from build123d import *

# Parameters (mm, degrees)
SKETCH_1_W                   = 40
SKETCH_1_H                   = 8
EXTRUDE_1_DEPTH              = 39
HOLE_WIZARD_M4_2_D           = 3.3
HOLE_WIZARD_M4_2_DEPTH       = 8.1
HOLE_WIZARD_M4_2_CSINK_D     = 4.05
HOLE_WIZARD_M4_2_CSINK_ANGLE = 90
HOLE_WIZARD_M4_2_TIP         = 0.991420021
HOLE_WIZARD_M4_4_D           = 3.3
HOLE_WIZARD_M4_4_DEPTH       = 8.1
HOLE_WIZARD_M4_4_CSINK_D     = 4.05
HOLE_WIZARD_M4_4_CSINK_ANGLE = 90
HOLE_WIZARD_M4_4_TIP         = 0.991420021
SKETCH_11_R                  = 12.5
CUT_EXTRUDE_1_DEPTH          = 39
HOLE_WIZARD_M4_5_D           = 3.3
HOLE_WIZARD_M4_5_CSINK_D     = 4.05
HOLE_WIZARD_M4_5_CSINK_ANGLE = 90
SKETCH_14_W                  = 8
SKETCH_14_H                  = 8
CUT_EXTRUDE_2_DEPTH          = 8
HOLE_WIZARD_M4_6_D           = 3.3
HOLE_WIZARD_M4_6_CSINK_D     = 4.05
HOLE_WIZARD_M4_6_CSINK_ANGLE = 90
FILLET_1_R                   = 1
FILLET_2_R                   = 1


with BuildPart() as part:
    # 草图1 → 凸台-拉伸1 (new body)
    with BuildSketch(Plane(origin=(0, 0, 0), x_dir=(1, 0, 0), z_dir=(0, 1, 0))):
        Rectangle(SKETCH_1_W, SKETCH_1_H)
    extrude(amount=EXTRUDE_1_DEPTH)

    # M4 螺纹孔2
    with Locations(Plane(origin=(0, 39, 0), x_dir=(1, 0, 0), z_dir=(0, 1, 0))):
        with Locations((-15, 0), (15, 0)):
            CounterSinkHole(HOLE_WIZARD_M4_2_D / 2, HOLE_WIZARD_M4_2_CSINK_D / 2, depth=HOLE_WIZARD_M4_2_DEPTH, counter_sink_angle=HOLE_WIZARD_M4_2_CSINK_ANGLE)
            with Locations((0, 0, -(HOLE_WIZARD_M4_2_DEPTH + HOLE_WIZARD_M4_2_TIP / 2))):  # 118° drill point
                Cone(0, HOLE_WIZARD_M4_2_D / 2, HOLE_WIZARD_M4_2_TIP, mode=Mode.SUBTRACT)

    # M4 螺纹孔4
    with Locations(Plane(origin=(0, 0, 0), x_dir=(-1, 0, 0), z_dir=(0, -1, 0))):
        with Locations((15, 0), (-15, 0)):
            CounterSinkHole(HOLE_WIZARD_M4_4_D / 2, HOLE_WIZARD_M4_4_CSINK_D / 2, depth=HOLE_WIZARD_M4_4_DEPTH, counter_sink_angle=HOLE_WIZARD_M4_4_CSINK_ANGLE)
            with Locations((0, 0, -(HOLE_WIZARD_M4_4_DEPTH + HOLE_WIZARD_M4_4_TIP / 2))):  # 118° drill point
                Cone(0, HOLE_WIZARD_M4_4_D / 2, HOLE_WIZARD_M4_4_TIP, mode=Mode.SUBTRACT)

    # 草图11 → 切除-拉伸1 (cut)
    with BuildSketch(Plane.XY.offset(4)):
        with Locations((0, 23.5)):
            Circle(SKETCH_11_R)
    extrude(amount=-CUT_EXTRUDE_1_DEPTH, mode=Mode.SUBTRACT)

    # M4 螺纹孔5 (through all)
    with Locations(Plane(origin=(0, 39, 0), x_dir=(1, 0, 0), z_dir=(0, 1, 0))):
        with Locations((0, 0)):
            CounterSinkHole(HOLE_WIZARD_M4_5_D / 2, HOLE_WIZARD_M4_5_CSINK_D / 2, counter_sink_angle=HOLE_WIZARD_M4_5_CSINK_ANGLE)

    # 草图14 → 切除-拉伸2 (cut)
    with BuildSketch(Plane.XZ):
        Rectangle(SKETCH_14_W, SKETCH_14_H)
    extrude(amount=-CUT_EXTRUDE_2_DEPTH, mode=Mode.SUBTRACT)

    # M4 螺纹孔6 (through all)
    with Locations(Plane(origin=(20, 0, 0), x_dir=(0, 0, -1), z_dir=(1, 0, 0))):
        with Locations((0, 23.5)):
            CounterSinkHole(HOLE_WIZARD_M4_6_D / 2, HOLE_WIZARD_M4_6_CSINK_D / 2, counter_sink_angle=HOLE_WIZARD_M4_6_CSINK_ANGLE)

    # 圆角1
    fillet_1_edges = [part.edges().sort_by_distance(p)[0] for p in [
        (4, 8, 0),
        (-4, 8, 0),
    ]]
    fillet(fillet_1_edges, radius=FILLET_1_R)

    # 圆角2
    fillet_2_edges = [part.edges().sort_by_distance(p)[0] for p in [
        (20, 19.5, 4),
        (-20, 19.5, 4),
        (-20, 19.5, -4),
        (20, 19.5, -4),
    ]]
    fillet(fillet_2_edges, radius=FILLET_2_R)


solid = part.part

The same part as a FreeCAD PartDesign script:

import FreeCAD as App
import Part
import Sketcher

V = App.Vector


def edges_at(feature, points):
    """Names of the edges that pass closest to the given points."""
    edges = feature.Shape.Edges
    near = lambda p: min(range(len(edges)), key=lambda i: edges[i].distToShape(Part.Vertex(*p))[0])
    return sorted({f"Edge{near(p) + 1}" for p in points})

doc = App.newDocument("Part")
params = doc.addObject("Spreadsheet::Sheet", "Params")
for row, (alias, value) in enumerate([
    ("sketch1_width", "40 mm"),
    ("sketch1_height", "8 mm"),
    ("pad1_length", "39 mm"),
    ("sketch2_diameter", "3.3 mm"),
    ("hole_diameter", "3.3 mm"),
    ("hole_depth", "8.1 mm"),
    ("hole_csink_diameter", "4.05 mm"),
    ("sketch3_diameter", "3.3 mm"),
    ("hole2_diameter", "3.3 mm"),
    ("hole2_depth", "8.1 mm"),
    ("hole2_csink_diameter", "4.05 mm"),
    ("sketch4_diameter", "25 mm"),
    ("pocket1_length", "39 mm"),
    ("sketch5_diameter", "3.3 mm"),
    ("hole3_diameter", "3.3 mm"),
    ("hole3_csink_diameter", "4.05 mm"),
    ("sketch6_width", "8 mm"),
    ("pocket2_length", "8 mm"),
    ("sketch7_diameter", "3.3 mm"),
    ("hole4_diameter", "3.3 mm"),
    ("hole4_csink_diameter", "4.05 mm"),
    ("fillet_radius", "1 mm"),
    ("fillet2_radius", "1 mm"),
], start=1):
    params.set(f"A{row}", alias)
    params.set(f"B{row}", "=" + value)
    params.setAlias(f"B{row}", alias)

body = doc.addObject("PartDesign::Body", "Body")

# Sketch on XZ plane
sketch1 = body.newObject("Sketcher::SketchObject", "Sketch")
sketch1.AttachmentSupport = (doc.getObject("XZ_Plane"), [""])
sketch1.MapMode = "FlatFace"
sketch1.addGeometry(Part.LineSegment(V(-20, -4, 0), V(-20, 4, 0)), False)
sketch1.addGeometry(Part.LineSegment(V(-20, 4, 0), V(20, 4, 0)), False)
sketch1.addGeometry(Part.LineSegment(V(20, 4, 0), V(20, -4, 0)), False)
sketch1.addGeometry(Part.LineSegment(V(20, -4, 0), V(-20, -4, 0)), False)
sketch1.addConstraint(Sketcher.Constraint("Coincident", 0, 2, 1, 1))
sketch1.addConstraint(Sketcher.Constraint("Coincident", 1, 2, 2, 1))
sketch1.addConstraint(Sketcher.Constraint("Coincident", 2, 2, 3, 1))
sketch1.addConstraint(Sketcher.Constraint("Coincident", 3, 2, 0, 1))
sketch1.addConstraint(Sketcher.Constraint("Vertical", 0))
sketch1.addConstraint(Sketcher.Constraint("Horizontal", 1))
sketch1.addConstraint(Sketcher.Constraint("Vertical", 2))
sketch1.addConstraint(Sketcher.Constraint("Horizontal", 3))
sketch1.addConstraint(Sketcher.Constraint("Symmetric", 0, 2, 2, 2, -1, 1))
sketch1.addConstraint(Sketcher.Constraint("DistanceX", 1, 1, 1, 2, 40.0))
sketch1.addConstraint(Sketcher.Constraint("DistanceY", 0, 1, 0, 2, 8.0))
sketch1.setExpression("Constraints[9]", "Params.sketch1_width")
sketch1.setExpression("Constraints[10]", "Params.sketch1_height")
pad1 = body.newObject("PartDesign::Pad", "Pad")
pad1.Profile = sketch1
pad1.setExpression("Length", "Params.pad1_length")
pad1.Reversed = True

# Sketch on XZ plane
sketch2 = body.newObject("Sketcher::SketchObject", "Sketch001")
sketch2.AttachmentSupport = (doc.getObject("XZ_Plane"), [""])
sketch2.MapMode = "FlatFace"
sketch2.AttachmentOffset = App.Placement(V(0, 0, -39), App.Rotation())
sketch2.addGeometry(Part.Circle(V(-15, 0, 0), V(0, 0, 1), 1.65), False)
sketch2.addGeometry(Part.Circle(V(15, 0, 0), V(0, 0, 1), 1.65), False)
sketch2.addConstraint(Sketcher.Constraint("Equal", 0, 1))
sketch2.addConstraint(Sketcher.Constraint("Symmetric", 0, 3, 1, 3, -1, 1))
sketch2.addConstraint(Sketcher.Constraint("PointOnObject", 0, 3, -1))
sketch2.addConstraint(Sketcher.Constraint("Diameter", 0, 3.3))
sketch2.addConstraint(Sketcher.Constraint("DistanceX", 0, 3, -1, 1, 15.0))
sketch2.setExpression("Constraints[3]", "Params.sketch2_diameter")
doc.recompute()
hole = body.newObject("PartDesign::Hole", "Hole")
hole.Profile = sketch2
hole.ThreadType = "None"
hole.setExpression("Diameter", "Params.hole_diameter")
hole.DepthType = "Dimension"
hole.setExpression("Depth", "Params.hole_depth")
hole.DrillPoint = "Angled"
hole.DrillPointAngle = 118
hole.HoleCutType = "Countersink"
hole.setExpression("HoleCutDiameter", "Params.hole_csink_diameter")
hole.HoleCutCountersinkAngle = 90
hole.Reversed = True

# Sketch on XZ plane
sketch3 = body.newObject("Sketcher::SketchObject", "Sketch002")
sketch3.AttachmentSupport = (doc.getObject("XZ_Plane"), [""])
sketch3.MapMode = "FlatFace"
sketch3.addGeometry(Part.Circle(V(-15, 0, 0), V(0, 0, 1), 1.65), False)
sketch3.addGeometry(Part.Circle(V(15, 0, 0), V(0, 0, 1), 1.65), False)
sketch3.addConstraint(Sketcher.Constraint("Equal", 0, 1))
sketch3.addConstraint(Sketcher.Constraint("Symmetric", 0, 3, 1, 3, -1, 1))
sketch3.addConstraint(Sketcher.Constraint("PointOnObject", 0, 3, -1))
sketch3.addConstraint(Sketcher.Constraint("Diameter", 0, 3.3))
sketch3.addConstraint(Sketcher.Constraint("DistanceX", 0, 3, -1, 1, 15.0))
sketch3.setExpression("Constraints[3]", "Params.sketch3_diameter")
doc.recompute()
hole2 = body.newObject("PartDesign::Hole", "Hole001")
hole2.Profile = sketch3
hole2.ThreadType = "None"
hole2.setExpression("Diameter", "Params.hole2_diameter")
hole2.DepthType = "Dimension"
hole2.setExpression("Depth", "Params.hole2_depth")
hole2.DrillPoint = "Angled"
hole2.DrillPointAngle = 118
hole2.HoleCutType = "Countersink"
hole2.setExpression("HoleCutDiameter", "Params.hole2_csink_diameter")
hole2.HoleCutCountersinkAngle = 90

# Sketch on XY plane
sketch4 = body.newObject("Sketcher::SketchObject", "Sketch003")
sketch4.AttachmentSupport = (doc.getObject("XY_Plane"), [""])
sketch4.MapMode = "FlatFace"
sketch4.AttachmentOffset = App.Placement(V(0, 0, 4), App.Rotation())
sketch4.addGeometry(Part.Circle(V(0, 23.5, 0), V(0, 0, 1), 12.5), False)
sketch4.addConstraint(Sketcher.Constraint("PointOnObject", 0, 3, -2))
sketch4.addConstraint(Sketcher.Constraint("Diameter", 0, 25.0))
sketch4.addConstraint(Sketcher.Constraint("DistanceY", -1, 1, 0, 3, 23.5))
sketch4.setExpression("Constraints[1]", "Params.sketch4_diameter")
pocket1 = body.newObject("PartDesign::Pocket", "Pocket")
pocket1.Profile = sketch4
pocket1.setExpression("Length", "Params.pocket1_length")

# Sketch on XZ plane
sketch5 = body.newObject("Sketcher::SketchObject", "Sketch004")
sketch5.AttachmentSupport = (doc.getObject("XZ_Plane"), [""])
sketch5.MapMode = "FlatFace"
sketch5.AttachmentOffset = App.Placement(V(0, 0, -39), App.Rotation())
sketch5.addGeometry(Part.Circle(V(0, 0, 0), V(0, 0, 1), 1.65), False)
sketch5.addConstraint(Sketcher.Constraint("Coincident", 0, 3, -1, 1))
sketch5.addConstraint(Sketcher.Constraint("Diameter", 0, 3.3))
sketch5.setExpression("Constraints[1]", "Params.sketch5_diameter")
doc.recompute()
hole3 = body.newObject("PartDesign::Hole", "Hole002")
hole3.Profile = sketch5
hole3.ThreadType = "None"
hole3.setExpression("Diameter", "Params.hole3_diameter")
hole3.DepthType = "ThroughAll"
hole3.HoleCutType = "Countersink"
hole3.setExpression("HoleCutDiameter", "Params.hole3_csink_diameter")
hole3.HoleCutCountersinkAngle = 90
hole3.Reversed = True

# Sketch on XZ plane
sketch6 = body.newObject("Sketcher::SketchObject", "Sketch005")
sketch6.AttachmentSupport = (doc.getObject("XZ_Plane"), [""])
sketch6.MapMode = "FlatFace"
sketch6.addGeometry(Part.LineSegment(V(-4, 4, 0), V(-4, -4, 0)), False)
sketch6.addGeometry(Part.LineSegment(V(-4, -4, 0), V(4, -4, 0)), False)
sketch6.addGeometry(Part.LineSegment(V(4, -4, 0), V(4, 4, 0)), False)
sketch6.addGeometry(Part.LineSegment(V(4, 4, 0), V(-4, 4, 0)), False)
sketch6.addConstraint(Sketcher.Constraint("Coincident", 0, 2, 1, 1))
sketch6.addConstraint(Sketcher.Constraint("Coincident", 1, 2, 2, 1))
sketch6.addConstraint(Sketcher.Constraint("Coincident", 2, 2, 3, 1))
sketch6.addConstraint(Sketcher.Constraint("Coincident", 3, 2, 0, 1))
sketch6.addConstraint(Sketcher.Constraint("Vertical", 0))
sketch6.addConstraint(Sketcher.Constraint("Horizontal", 1))
sketch6.addConstraint(Sketcher.Constraint("Vertical", 2))
sketch6.addConstraint(Sketcher.Constraint("Horizontal", 3))
sketch6.addConstraint(Sketcher.Constraint("Symmetric", 0, 2, 2, 2, -1, 1))
sketch6.addConstraint(Sketcher.Constraint("Equal", 3, 0))
sketch6.addConstraint(Sketcher.Constraint("DistanceX", 1, 1, 1, 2, 8.0))
sketch6.setExpression("Constraints[10]", "Params.sketch6_width")
pocket2 = body.newObject("PartDesign::Pocket", "Pocket001")
pocket2.Profile = sketch6
pocket2.setExpression("Length", "Params.pocket2_length")

# Sketch on YZ plane
sketch7 = body.newObject("Sketcher::SketchObject", "Sketch006")
sketch7.AttachmentSupport = (doc.getObject("YZ_Plane"), [""])
sketch7.MapMode = "FlatFace"
sketch7.AttachmentOffset = App.Placement(V(0, 0, 20), App.Rotation())
sketch7.addGeometry(Part.Circle(V(23.5, 0, 0), V(0, 0, 1), 1.65), False)
sketch7.addConstraint(Sketcher.Constraint("PointOnObject", 0, 3, -1))
sketch7.addConstraint(Sketcher.Constraint("Diameter", 0, 3.3))
sketch7.addConstraint(Sketcher.Constraint("DistanceX", -1, 1, 0, 3, 23.5))
sketch7.setExpression("Constraints[1]", "Params.sketch7_diameter")
doc.recompute()
hole4 = body.newObject("PartDesign::Hole", "Hole003")
hole4.Profile = sketch7
hole4.ThreadType = "None"
hole4.setExpression("Diameter", "Params.hole4_diameter")
hole4.DepthType = "ThroughAll"
hole4.HoleCutType = "Countersink"
hole4.setExpression("HoleCutDiameter", "Params.hole4_csink_diameter")
hole4.HoleCutCountersinkAngle = 90
doc.recompute()

fillet = body.newObject("PartDesign::Fillet", "Fillet")
fillet.Base = (hole4, edges_at(hole4, [(4, 8, 0), (-4, 8, 0)]))
fillet.setExpression("Radius", "Params.fillet_radius")
doc.recompute()

fillet2 = body.newObject("PartDesign::Fillet", "Fillet001")
fillet2.Base = (fillet, edges_at(fillet, [
    (20, 19.5, 4),
    (-20, 19.5, 4),
    (-20, 19.5, -4),
    (20, 19.5, -4),
]))
fillet2.setExpression("Radius", "Params.fillet2_radius")

doc.recompute()
